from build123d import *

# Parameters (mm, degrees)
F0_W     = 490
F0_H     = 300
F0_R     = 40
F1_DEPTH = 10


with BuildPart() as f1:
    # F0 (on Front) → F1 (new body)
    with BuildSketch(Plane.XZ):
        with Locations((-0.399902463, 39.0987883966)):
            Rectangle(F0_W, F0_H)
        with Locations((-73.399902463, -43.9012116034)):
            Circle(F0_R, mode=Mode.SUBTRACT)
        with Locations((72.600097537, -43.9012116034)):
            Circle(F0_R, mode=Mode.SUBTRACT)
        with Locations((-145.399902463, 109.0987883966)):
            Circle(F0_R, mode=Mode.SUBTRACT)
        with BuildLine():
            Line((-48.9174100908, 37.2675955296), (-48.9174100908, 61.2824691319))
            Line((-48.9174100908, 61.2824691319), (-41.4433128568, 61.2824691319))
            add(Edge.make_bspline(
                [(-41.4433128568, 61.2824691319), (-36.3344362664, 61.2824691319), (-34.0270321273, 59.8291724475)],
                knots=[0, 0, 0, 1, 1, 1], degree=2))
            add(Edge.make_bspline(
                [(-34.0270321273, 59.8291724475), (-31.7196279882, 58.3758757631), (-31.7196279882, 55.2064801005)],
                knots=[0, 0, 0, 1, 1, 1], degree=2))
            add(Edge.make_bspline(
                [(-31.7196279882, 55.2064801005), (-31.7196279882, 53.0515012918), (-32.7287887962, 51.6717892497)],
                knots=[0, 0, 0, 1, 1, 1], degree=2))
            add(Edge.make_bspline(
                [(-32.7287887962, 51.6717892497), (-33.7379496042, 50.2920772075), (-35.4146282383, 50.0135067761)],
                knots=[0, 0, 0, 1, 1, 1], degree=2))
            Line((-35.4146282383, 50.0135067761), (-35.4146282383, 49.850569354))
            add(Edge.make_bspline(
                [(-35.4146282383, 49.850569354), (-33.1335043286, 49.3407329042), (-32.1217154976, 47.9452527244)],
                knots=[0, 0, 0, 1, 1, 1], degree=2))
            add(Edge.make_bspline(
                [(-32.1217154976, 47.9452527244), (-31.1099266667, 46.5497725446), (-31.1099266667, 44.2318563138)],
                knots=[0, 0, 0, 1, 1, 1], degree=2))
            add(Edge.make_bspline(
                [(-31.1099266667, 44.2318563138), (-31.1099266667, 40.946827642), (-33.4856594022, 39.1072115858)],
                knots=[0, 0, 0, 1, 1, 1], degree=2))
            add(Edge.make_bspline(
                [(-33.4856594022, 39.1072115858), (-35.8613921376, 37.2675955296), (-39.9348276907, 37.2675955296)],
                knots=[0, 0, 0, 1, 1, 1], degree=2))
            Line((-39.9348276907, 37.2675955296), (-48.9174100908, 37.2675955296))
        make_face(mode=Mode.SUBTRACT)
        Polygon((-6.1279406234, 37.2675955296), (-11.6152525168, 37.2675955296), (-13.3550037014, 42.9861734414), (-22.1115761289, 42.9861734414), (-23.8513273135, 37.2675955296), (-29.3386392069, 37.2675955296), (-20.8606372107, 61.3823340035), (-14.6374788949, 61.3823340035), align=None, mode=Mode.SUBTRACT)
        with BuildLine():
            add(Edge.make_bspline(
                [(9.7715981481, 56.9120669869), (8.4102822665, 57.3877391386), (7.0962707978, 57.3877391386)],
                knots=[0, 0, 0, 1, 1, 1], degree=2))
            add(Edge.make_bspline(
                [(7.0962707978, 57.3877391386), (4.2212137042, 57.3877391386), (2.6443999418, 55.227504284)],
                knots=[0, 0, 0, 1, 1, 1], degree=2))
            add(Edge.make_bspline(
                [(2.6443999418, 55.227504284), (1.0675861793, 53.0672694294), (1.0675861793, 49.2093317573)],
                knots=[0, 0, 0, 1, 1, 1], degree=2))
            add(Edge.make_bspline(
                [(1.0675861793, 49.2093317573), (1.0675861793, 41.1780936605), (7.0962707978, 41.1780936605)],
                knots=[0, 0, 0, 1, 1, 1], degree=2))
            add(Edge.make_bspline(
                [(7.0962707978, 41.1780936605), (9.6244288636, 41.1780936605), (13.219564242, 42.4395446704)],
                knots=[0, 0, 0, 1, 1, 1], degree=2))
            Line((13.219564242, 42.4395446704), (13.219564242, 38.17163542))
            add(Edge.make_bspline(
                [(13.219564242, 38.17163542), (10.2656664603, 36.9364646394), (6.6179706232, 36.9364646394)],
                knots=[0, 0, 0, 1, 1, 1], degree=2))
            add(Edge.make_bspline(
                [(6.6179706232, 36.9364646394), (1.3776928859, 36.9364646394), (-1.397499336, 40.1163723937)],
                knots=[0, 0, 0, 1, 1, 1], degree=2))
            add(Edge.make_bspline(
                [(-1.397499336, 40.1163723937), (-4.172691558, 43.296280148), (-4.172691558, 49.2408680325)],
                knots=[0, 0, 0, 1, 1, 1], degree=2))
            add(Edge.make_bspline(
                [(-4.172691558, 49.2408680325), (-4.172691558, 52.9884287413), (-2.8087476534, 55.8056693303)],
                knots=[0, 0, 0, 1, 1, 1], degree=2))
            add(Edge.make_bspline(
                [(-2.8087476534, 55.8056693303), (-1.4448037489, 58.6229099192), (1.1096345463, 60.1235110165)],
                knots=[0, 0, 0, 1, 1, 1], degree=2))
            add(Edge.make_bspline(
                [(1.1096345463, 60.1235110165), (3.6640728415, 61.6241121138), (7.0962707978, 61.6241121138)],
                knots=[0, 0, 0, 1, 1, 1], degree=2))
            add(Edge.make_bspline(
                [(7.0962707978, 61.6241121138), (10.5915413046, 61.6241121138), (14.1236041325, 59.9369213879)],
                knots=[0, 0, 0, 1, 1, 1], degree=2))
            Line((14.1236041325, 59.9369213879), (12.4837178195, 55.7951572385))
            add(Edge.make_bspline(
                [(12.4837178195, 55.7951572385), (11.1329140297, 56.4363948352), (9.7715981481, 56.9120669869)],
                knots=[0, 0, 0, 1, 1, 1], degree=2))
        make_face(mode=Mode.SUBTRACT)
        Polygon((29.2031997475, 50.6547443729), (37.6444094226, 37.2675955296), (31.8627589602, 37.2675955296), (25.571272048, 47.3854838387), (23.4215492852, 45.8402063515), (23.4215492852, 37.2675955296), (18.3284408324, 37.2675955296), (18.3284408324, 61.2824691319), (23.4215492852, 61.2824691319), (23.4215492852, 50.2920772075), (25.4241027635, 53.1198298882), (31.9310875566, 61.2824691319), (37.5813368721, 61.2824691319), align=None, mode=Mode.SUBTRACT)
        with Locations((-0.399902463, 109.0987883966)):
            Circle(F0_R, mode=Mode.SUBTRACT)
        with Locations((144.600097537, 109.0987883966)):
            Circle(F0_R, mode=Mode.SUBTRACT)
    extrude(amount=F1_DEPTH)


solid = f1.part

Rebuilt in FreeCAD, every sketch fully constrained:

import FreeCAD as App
import Part
import Sketcher


def add_polygon(sketch, points):
    """Adds a closed chain of lines whose ends are joined by coincident constraints."""
    first, n = sketch.GeometryCount, len(points)
    for a, b in zip(points, points[1:] + points[:1]):
        sketch.addGeometry(Part.LineSegment(App.Vector(*a, 0), App.Vector(*b, 0)), False)
    for i in range(n):
        sketch.addConstraint(Sketcher.Constraint("Coincident", first + i, 2, first + (i + 1) % n, 1))

doc = App.newDocument("Part")
params = doc.addObject("Spreadsheet::Sheet", "Params")
for row, (alias, value) in enumerate([
    ("sketch1_diameter", "80 mm"),
    ("sketch1_width", "490 mm"),
    ("sketch1_height", "300 mm"),
    ("pad1_length", "10 mm"),
], start=1):
    params.set(f"A{row}", alias)
    params.set(f"B{row}", "=" + value)
    params.setAlias(f"B{row}", alias)

body = doc.addObject("PartDesign::Body", "Body")

# Sketch on XZ plane
sketch1 = body.newObject("Sketcher::SketchObject", "Sketch")
sketch1.AttachmentSupport = (doc.getObject("XZ_Plane"), [""])
sketch1.MapMode = "FlatFace"
add_polygon(sketch1, [(-245.399902, 189.098788), (-245.399902, -110.901212), (244.600098, -110.901212), (244.600098, 189.098788)])  # lines 0-3
sketch1.addGeometry(Part.Circle(App.Vector(-73.399902, -43.901212, 0), App.Vector(0, 0, 1), 40), False)  # 4
sketch1.addGeometry(Part.Circle(App.Vector(72.600098, -43.901212, 0), App.Vector(0, 0, 1), 40), False)  # 5
sketch1.addGeometry(Part.LineSegment(App.Vector(-39.934828, 37.267596, 0), App.Vector(-48.91741, 37.267596, 0)), False)  # 6
sketch1.addGeometry(Part.LineSegment(App.Vector(-48.91741, 37.267596, 0), App.Vector(-48.91741, 61.282469, 0)), False)  # 7
sketch1.addGeometry(Part.LineSegment(App.Vector(-48.91741, 61.282469, 0), App.Vector(-41.443313, 61.282469, 0)), False)  # 8
sketch1.addGeometry(Part.BSplineCurve([App.Vector(-41.443313, 61.282469, 0), App.Vector(-36.334436, 61.282469, 0), App.Vector(-31.719628, 58.375876, 0), App.Vector(-31.719628, 53.051501, 0), App.Vector(-32.728789, 51.671789, 0)], [3, 1, 1, 3], [0, 1, 2, 2.679933665], False, 2, [1, 1, 1, 1, 1], False), False)  # 9
sketch1.addGeometry(Part.BSplineCurve([App.Vector(-32.728789, 51.671789, 0), App.Vector(-33.73795, 50.292077, 0), App.Vector(-35.414628, 50.013507, 0)], [3, 3], [0, 1], False, 2, [1, 1, 1], False), False)  # 10
sketch1.addGeometry(Part.LineSegment(App.Vector(-35.414628, 50.013507, 0), App.Vector(-35.414628, 49.850569, 0)), False)  # 11
sketch1.addGeometry(Part.BSplineCurve([App.Vector(-35.414628, 49.850569, 0), App.Vector(-33.133504, 49.340733, 0), App.Vector(-32.121715, 47.945253, 0)], [3, 3], [0, 1], False, 2, [1, 1, 1], False), False)  # 12
sketch1.addGeometry(Part.BSplineCurve([App.Vector(-32.121715, 47.945253, 0), App.Vector(-31.109927, 46.549773, 0), App.Vector(-31.109927, 40.946828, 0), App.Vector(-33.485659, 39.107212, 0)], [3, 1, 3], [0, 1, 2.41723356], False, 2, [1, 1, 1, 1], False), False)  # 13
sketch1.addGeometry(Part.BSplineCurve([App.Vector(-33.485659, 39.107212, 0), App.Vector(-35.861392, 37.267596, 0), App.Vector(-39.934828, 37.267596, 0)], [3, 3], [0, 1], False, 2, [1, 1, 1], False), False)  # 14
add_polygon(sketch1, [(-14.637479, 61.382334), (-6.127941, 37.267596), (-11.615253, 37.267596), (-13.355004, 42.986173), (-22.111576, 42.986173), (-23.851327, 37.267596), (-29.338639, 37.267596), (-20.860637, 61.382334)])  # lines 15-22
sketch1.addGeometry(Part.Circle(App.Vector(-145.399902, 109.098788, 0), App.Vector(0, 0, 1), 40), False)  # 23
sketch1.addGeometry(Part.BSplineCurve([App.Vector(12.483718, 55.795157, 0), App.Vector(11.132914, 56.436395, 0), App.Vector(8.410282, 57.387739, 0), App.Vector(4.221214, 57.387739, 0), App.Vector(2.6444, 55.227504, 0)], [3, 1, 1, 3], [0, 1, 2, 4.188], False, 2, [1, 1, 1, 1, 1], False), False)  # 24
sketch1.addGeometry(Part.BSplineCurve([App.Vector(2.6444, 55.227504, 0), App.Vector(1.067586, 53.067269, 0), App.Vector(1.067586, 41.178094, 0), App.Vector(9.624429, 41.178094, 0), App.Vector(13.219564, 42.439545, 0)], [3, 1, 1, 3], [0, 1, 3.081743869, 3.954733234], False, 2, [1, 1, 1, 1, 1], False), False)  # 25
sketch1.addGeometry(Part.LineSegment(App.Vector(13.219564, 42.439545, 0), App.Vector(13.219564, 38.171635, 0)), False)  # 26
sketch1.addGeometry(Part.BSplineCurve([App.Vector(13.219564, 38.171635, 0), App.Vector(10.265666, 36.936465, 0), App.Vector(1.377693, 36.936465, 0), App.Vector(-1.397499, 40.116372, 0)], [3, 1, 3], [0, 1, 2.436599424], False, 2, [1, 1, 1, 1], False), False)  # 27
sketch1.addGeometry(Part.BSplineCurve([App.Vector(-1.397499, 40.116372, 0), App.Vector(-4.172692, 43.29628, 0), App.Vector(-4.172692, 52.988429, 0), App.Vector(-2.808748, 55.805669, 0)], [3, 1, 3], [0, 1, 1.630415561], False, 2, [1, 1, 1, 1], False), False)  # 28
sketch1.addGeometry(Part.BSplineCurve([App.Vector(-2.808748, 55.805669, 0), App.Vector(-1.444804, 58.62291, 0), App.Vector(3.664073, 61.624112, 0), App.Vector(10.591541, 61.624112, 0), App.Vector(14.123604, 59.936921, 0)], [3, 1, 1, 3], [0, 1, 2, 3.018376723], False, 2, [1, 1, 1, 1, 1], False), False)  # 29
sketch1.addGeometry(Part.LineSegment(App.Vector(14.123604, 59.936921, 0), App.Vector(12.483718, 55.795157, 0)), False)  # 30
add_polygon(sketch1, [(37.581337, 61.282469), (29.2032, 50.654744), (37.644409, 37.267596), (31.862759, 37.267596), (25.571272, 47.385484), (23.421549, 45.840206), (23.421549, 37.267596), (18.328441, 37.267596), (18.328441, 61.282469), (23.421549, 61.282469), (23.421549, 50.292077), (25.424103, 53.11983), (31.931088, 61.282469)])  # lines 31-43
sketch1.addGeometry(Part.Circle(App.Vector(-0.399902, 109.098788, 0), App.Vector(0, 0, 1), 40), False)  # 44
sketch1.addGeometry(Part.Circle(App.Vector(144.600098, 109.098788, 0), App.Vector(0, 0, 1), 40), False)  # 45
sketch1.addConstraint([
    Sketcher.Constraint("Block", 9),
    Sketcher.Constraint("Block", 10),
    Sketcher.Constraint("Block", 12),
    Sketcher.Constraint("Block", 13),
    Sketcher.Constraint("Block", 14),
    Sketcher.Constraint("Block", 24),
    Sketcher.Constraint("Block", 25),
    Sketcher.Constraint("Block", 27),
    Sketcher.Constraint("Block", 28),
    Sketcher.Constraint("Block", 29),
    Sketcher.Constraint("Coincident", 6, 2, 7, 1),
    Sketcher.Constraint("Coincident", 7, 2, 8, 1),
    Sketcher.Constraint("Coincident", 8, 2, 9, 1),
    Sketcher.Constraint("Coincident", 10, 2, 11, 1),
    Sketcher.Constraint("Coincident", 11, 2, 12, 1),
    Sketcher.Constraint("Coincident", 14, 2, 6, 1),
    Sketcher.Constraint("Coincident", 25, 2, 26, 1),
    Sketcher.Constraint("Coincident", 26, 2, 27, 1),
    Sketcher.Constraint("Coincident", 29, 2, 30, 1),
    Sketcher.Constraint("Coincident", 30, 2, 24, 1),
    Sketcher.Constraint("Vertical", 0),
    Sketcher.Constraint("Horizontal", 1),
    Sketcher.Constraint("Vertical", 2),
    Sketcher.Constraint("Horizontal", 3),
    Sketcher.Constraint("Horizontal", 6),
    Sketcher.Constraint("Vertical", 7),
    Sketcher.Constraint("Horizontal", 8),
    Sketcher.Constraint("Horizontal", 16),
    Sketcher.Constraint("Horizontal", 18),
    Sketcher.Constraint("Horizontal", 20),
    Sketcher.Constraint("Horizontal", 22),
    Sketcher.Constraint("Horizontal", 33),
    Sketcher.Constraint("Vertical", 36),
    Sketcher.Constraint("Horizontal", 37),
    Sketcher.Constraint("Vertical", 38),
    Sketcher.Constraint("Horizontal", 39),
    Sketcher.Constraint("Vertical", 40),
    Sketcher.Constraint("Horizontal", 43),
    Sketcher.Constraint("Equal", 4, 5),
    Sketcher.Constraint("Equal", 5, 23),
    Sketcher.Constraint("Equal", 23, 44),
    Sketcher.Constraint("Equal", 44, 45),
    Sketcher.Constraint("Horizontal", 4, 3, 5, 3),
    Sketcher.Constraint("Horizontal", 23, 3, 44, 3),
    Sketcher.Constraint("Horizontal", 44, 3, 45, 3),
    Sketcher.Constraint("Horizontal", 6, 2, 15, 2),
    Sketcher.Constraint("Horizontal", 16, 2, 19, 2),
    Sketcher.Constraint("Horizontal", 20, 2, 32, 2),
    Sketcher.Constraint("Horizontal", 33, 2, 36, 2),
    Sketcher.Constraint("Horizontal", 8, 2, 38, 2),
    Sketcher.Constraint("Horizontal", 39, 2, 42, 2),
    Sketcher.Constraint("Vertical", 36, 2, 39, 2),
    Sketcher.Constraint("Equal", 16, 20),
    Sketcher.Constraint("Equal", 17, 19),
    Sketcher.Constraint("Diameter", 4, 80.0),
    Sketcher.Constraint("DistanceX", 1, 1, 1, 2, 490.0),
    Sketcher.Constraint("DistanceY", 0, 2, 0, 1, 300.0),
    Sketcher.Constraint("DistanceX", 4, 3, 5, 3, 146.0),
    Sketcher.Constraint("DistanceX", 23, 3, 4, 3, 72.0),
    Sketcher.Constraint("DistanceY", 4, 3, 23, 3, 153.0),
    Sketcher.Constraint("DistanceX", 23, 3, 44, 3, 145.0),
    Sketcher.Constraint("DistanceX", 44, 3, 45, 3, 145.0),
    Sketcher.Constraint("DistanceX", 0, 2, 4, 3, 172.0),
    Sketcher.Constraint("DistanceY", 0, 2, 4, 3, 67.0),
    Sketcher.Constraint("DistanceX", 16, 2, 16, 1, 5.487312),
    Sketcher.Constraint("DistanceX", 22, 1, 22, 2, 6.223158),
    Sketcher.Constraint("DistanceX", 33, 2, 33, 1, 5.78165),
    Sketcher.Constraint("DistanceX", 37, 2, 37, 1, 5.093108),
    Sketcher.Constraint("DistanceX", 43, 1, 43, 2, 5.650249),
    Sketcher.Constraint("DistanceY", 36, 2, 36, 1, 8.572611),
    Sketcher.Constraint("DistanceY", 40, 2, 40, 1, 10.990392),
    Sketcher.Constraint("DistanceX", -1, 1, 31, 2, 29.2032),
    Sketcher.Constraint("DistanceX", 11, 2, 19, 2, 11.563301),
    Sketcher.Constraint("DistanceY", 26, 2, 22, 2, 23.210699),
    Sketcher.Constraint("DistanceX", 15, 2, 33, 2, 37.9907),
    Sketcher.Constraint("Distance", 15, 25.572111),
    Sketcher.Constraint("DistanceX", 6, 2, 6, 1, 8.982582),
    Sketcher.Constraint("DistanceX", 18, 2, 18, 1, 8.756572),
    Sketcher.Constraint("DistanceY", 4, 3, -1, 1, 43.901212),
    Sketcher.Constraint("DistanceX", 15, 2, -1, 1, 6.127941),
    Sketcher.Constraint("DistanceX", -1, 1, 35, 2, 23.421549),
    Sketcher.Constraint("DistanceY", -1, 1, 41, 2, 53.11983),
    Sketcher.Constraint("DistanceX", 8, 2, 44, 3, 41.04341),
    Sketcher.Constraint("DistanceY", 18, 2, 21, 2, 18.396161),
    Sketcher.Constraint("DistanceY", 26, 2, 31, 2, 12.483109),
    Sketcher.Constraint("DistanceY", 34, 2, 31, 2, 3.269261),
    Sketcher.Constraint("DistanceX", 37, 2, 34, 2, 7.242831),
    Sketcher.Constraint("DistanceX", 41, 2, 34, 2, 0.147169),
    Sketcher.Constraint("DistanceX", 39, 2, 42, 2, 8.509538),
])
sketch1.setExpression("Constraints[79]", "Params.sketch1_diameter")
sketch1.setExpression("Constraints[80]", "Params.sketch1_width")
sketch1.setExpression("Constraints[81]", "Params.sketch1_height")
pad1 = body.newObject("PartDesign::Pad", "Pad")
pad1.Profile = sketch1
pad1.setExpression("Length", "Params.pad1_length")

doc.recompute()
